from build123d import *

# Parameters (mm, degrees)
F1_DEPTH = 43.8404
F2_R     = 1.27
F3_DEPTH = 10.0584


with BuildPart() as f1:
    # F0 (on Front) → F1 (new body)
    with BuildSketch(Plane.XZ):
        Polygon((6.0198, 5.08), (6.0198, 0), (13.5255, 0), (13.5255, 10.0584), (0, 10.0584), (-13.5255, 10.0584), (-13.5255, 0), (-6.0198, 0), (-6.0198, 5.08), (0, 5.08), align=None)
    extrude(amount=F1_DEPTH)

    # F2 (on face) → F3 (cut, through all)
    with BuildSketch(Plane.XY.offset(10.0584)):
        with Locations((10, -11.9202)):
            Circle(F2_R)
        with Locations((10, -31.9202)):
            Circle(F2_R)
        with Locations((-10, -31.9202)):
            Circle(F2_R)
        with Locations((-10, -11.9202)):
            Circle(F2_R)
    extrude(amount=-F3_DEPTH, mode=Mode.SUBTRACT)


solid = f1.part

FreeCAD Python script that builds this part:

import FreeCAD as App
import Part
import Sketcher
Q = App.Units.Quantity


def add_polygon(sketch, points):
    """Adds a closed chain of lines whose ends are joined by coincident constraints."""
    first, n = sketch.GeometryCount, len(points)
    for a, b in zip(points, points[1:] + points[:1]):
        sketch.addGeometry(Part.LineSegment(App.Vector(*a, 0), App.Vector(*b, 0)), False)
    for i in range(n):
        sketch.addConstraint(Sketcher.Constraint("Coincident", first + i, 2, first + (i + 1) % n, 1))

doc = App.newDocument("Part")
body = doc.addObject("PartDesign::Body", "Body")

sketch1 = doc.addObject("Sketcher::SketchObject", "Sketch")
body.addObject(sketch1)
sketch1.AttachmentSupport = (doc.XZ_Plane, [""])
sketch1.MapMode = "FlatFace"
add_polygon(sketch1, [(6, 5), (6, 0), (14, 0), (14, 10), (-14, 10), (-14, 0), (-6, 0), (-6, 5)])
sketch1.addConstraint(Sketcher.Constraint("Vertical", 0))
sketch1.addConstraint(Sketcher.Constraint("Horizontal", 1))
sketch1.addConstraint(Sketcher.Constraint("Vertical", 2))
sketch1.addConstraint(Sketcher.Constraint("Horizontal", 3))
sketch1.addConstraint(Sketcher.Constraint("Vertical", 4))
sketch1.addConstraint(Sketcher.Constraint("Horizontal", 5))
sketch1.addConstraint(Sketcher.Constraint("Vertical", 6))
sketch1.addConstraint(Sketcher.Constraint("Horizontal", 7))
sketch1.addConstraint(Sketcher.Constraint("Symmetric", 1, 2, 4, 2, -1, 1))
sketch1.addConstraint(Sketcher.Constraint("Symmetric", 0, 2, 5, 2, -2))
sketch1.addConstraint(Sketcher.Constraint("DistanceY", 0, 2, 0, 1, Q("0.2 in")))
sketch1.addConstraint(Sketcher.Constraint("DistanceX", 3, 2, 3, 1, Q("1.065 in")))
sketch1.addConstraint(Sketcher.Constraint("DistanceX", 7, 1, 7, 2, Q("0.474 in")))
sketch1.addConstraint(Sketcher.Constraint("DistanceY", 2, 1, 2, 2, Q("0.396 in")))
pad1 = doc.addObject("PartDesign::Pad", "Pad")
body.addObject(pad1)
pad1.Profile = sketch1
pad1.Length = Q("1.726 in")

sketch2 = doc.addObject("Sketcher::SketchObject", "Sketch001")
body.addObject(sketch2)
sketch2.AttachmentSupport = (doc.XY_Plane, [""])
sketch2.MapMode = "FlatFace"
sketch2.AttachmentOffset = App.Placement(App.Vector(0, 0, 0.396 * 25.4), App.Rotation())
sketch2.addGeometry(Part.Circle(App.Vector(10, -11.9, 0), App.Vector(0, 0, 1), 1.3), False)
sketch2.addGeometry(Part.Circle(App.Vector(10, -31.9, 0), App.Vector(0, 0, 1), 1.3), False)
sketch2.addGeometry(Part.Circle(App.Vector(-10, -31.9, 0), App.Vector(0, 0, 1), 1.3), False)
sketch2.addGeometry(Part.Circle(App.Vector(-10, -11.9, 0), App.Vector(0, 0, 1), 1.3), False)
sketch2.addConstraint(Sketcher.Constraint("Equal", 0, 1))
sketch2.addConstraint(Sketcher.Constraint("Equal", 1, 2))
sketch2.addConstraint(Sketcher.Constraint("Equal", 2, 3))
sketch2.addConstraint(Sketcher.Constraint("Symmetric", 1, 3, 2, 3, -2))
sketch2.addConstraint(Sketcher.Constraint("Symmetric", 0, 3, 3, 3, -2))
sketch2.addConstraint(Sketcher.Constraint("Vertical", 0, 3, 1, 3))
sketch2.addConstraint(Sketcher.Constraint("Diameter", 0, Q("0.1 in")))
sketch2.addConstraint(Sketcher.Constraint("DistanceX", -1, 1, 0, 3, Q("10 mm")))
sketch2.addConstraint(Sketcher.Constraint("DistanceY", 0, 3, -1, 1, Q("11.9202 mm")))
sketch2.addConstraint(Sketcher.Constraint("DistanceY", 1, 3, -1, 1, Q("31.9202 mm")))
pocket1 = doc.addObject("PartDesign::Pocket", "Pocket")
body.addObject(pocket1)
pocket1.Profile = sketch2
pocket1.Type = "ThroughAll"

doc.recompute()
